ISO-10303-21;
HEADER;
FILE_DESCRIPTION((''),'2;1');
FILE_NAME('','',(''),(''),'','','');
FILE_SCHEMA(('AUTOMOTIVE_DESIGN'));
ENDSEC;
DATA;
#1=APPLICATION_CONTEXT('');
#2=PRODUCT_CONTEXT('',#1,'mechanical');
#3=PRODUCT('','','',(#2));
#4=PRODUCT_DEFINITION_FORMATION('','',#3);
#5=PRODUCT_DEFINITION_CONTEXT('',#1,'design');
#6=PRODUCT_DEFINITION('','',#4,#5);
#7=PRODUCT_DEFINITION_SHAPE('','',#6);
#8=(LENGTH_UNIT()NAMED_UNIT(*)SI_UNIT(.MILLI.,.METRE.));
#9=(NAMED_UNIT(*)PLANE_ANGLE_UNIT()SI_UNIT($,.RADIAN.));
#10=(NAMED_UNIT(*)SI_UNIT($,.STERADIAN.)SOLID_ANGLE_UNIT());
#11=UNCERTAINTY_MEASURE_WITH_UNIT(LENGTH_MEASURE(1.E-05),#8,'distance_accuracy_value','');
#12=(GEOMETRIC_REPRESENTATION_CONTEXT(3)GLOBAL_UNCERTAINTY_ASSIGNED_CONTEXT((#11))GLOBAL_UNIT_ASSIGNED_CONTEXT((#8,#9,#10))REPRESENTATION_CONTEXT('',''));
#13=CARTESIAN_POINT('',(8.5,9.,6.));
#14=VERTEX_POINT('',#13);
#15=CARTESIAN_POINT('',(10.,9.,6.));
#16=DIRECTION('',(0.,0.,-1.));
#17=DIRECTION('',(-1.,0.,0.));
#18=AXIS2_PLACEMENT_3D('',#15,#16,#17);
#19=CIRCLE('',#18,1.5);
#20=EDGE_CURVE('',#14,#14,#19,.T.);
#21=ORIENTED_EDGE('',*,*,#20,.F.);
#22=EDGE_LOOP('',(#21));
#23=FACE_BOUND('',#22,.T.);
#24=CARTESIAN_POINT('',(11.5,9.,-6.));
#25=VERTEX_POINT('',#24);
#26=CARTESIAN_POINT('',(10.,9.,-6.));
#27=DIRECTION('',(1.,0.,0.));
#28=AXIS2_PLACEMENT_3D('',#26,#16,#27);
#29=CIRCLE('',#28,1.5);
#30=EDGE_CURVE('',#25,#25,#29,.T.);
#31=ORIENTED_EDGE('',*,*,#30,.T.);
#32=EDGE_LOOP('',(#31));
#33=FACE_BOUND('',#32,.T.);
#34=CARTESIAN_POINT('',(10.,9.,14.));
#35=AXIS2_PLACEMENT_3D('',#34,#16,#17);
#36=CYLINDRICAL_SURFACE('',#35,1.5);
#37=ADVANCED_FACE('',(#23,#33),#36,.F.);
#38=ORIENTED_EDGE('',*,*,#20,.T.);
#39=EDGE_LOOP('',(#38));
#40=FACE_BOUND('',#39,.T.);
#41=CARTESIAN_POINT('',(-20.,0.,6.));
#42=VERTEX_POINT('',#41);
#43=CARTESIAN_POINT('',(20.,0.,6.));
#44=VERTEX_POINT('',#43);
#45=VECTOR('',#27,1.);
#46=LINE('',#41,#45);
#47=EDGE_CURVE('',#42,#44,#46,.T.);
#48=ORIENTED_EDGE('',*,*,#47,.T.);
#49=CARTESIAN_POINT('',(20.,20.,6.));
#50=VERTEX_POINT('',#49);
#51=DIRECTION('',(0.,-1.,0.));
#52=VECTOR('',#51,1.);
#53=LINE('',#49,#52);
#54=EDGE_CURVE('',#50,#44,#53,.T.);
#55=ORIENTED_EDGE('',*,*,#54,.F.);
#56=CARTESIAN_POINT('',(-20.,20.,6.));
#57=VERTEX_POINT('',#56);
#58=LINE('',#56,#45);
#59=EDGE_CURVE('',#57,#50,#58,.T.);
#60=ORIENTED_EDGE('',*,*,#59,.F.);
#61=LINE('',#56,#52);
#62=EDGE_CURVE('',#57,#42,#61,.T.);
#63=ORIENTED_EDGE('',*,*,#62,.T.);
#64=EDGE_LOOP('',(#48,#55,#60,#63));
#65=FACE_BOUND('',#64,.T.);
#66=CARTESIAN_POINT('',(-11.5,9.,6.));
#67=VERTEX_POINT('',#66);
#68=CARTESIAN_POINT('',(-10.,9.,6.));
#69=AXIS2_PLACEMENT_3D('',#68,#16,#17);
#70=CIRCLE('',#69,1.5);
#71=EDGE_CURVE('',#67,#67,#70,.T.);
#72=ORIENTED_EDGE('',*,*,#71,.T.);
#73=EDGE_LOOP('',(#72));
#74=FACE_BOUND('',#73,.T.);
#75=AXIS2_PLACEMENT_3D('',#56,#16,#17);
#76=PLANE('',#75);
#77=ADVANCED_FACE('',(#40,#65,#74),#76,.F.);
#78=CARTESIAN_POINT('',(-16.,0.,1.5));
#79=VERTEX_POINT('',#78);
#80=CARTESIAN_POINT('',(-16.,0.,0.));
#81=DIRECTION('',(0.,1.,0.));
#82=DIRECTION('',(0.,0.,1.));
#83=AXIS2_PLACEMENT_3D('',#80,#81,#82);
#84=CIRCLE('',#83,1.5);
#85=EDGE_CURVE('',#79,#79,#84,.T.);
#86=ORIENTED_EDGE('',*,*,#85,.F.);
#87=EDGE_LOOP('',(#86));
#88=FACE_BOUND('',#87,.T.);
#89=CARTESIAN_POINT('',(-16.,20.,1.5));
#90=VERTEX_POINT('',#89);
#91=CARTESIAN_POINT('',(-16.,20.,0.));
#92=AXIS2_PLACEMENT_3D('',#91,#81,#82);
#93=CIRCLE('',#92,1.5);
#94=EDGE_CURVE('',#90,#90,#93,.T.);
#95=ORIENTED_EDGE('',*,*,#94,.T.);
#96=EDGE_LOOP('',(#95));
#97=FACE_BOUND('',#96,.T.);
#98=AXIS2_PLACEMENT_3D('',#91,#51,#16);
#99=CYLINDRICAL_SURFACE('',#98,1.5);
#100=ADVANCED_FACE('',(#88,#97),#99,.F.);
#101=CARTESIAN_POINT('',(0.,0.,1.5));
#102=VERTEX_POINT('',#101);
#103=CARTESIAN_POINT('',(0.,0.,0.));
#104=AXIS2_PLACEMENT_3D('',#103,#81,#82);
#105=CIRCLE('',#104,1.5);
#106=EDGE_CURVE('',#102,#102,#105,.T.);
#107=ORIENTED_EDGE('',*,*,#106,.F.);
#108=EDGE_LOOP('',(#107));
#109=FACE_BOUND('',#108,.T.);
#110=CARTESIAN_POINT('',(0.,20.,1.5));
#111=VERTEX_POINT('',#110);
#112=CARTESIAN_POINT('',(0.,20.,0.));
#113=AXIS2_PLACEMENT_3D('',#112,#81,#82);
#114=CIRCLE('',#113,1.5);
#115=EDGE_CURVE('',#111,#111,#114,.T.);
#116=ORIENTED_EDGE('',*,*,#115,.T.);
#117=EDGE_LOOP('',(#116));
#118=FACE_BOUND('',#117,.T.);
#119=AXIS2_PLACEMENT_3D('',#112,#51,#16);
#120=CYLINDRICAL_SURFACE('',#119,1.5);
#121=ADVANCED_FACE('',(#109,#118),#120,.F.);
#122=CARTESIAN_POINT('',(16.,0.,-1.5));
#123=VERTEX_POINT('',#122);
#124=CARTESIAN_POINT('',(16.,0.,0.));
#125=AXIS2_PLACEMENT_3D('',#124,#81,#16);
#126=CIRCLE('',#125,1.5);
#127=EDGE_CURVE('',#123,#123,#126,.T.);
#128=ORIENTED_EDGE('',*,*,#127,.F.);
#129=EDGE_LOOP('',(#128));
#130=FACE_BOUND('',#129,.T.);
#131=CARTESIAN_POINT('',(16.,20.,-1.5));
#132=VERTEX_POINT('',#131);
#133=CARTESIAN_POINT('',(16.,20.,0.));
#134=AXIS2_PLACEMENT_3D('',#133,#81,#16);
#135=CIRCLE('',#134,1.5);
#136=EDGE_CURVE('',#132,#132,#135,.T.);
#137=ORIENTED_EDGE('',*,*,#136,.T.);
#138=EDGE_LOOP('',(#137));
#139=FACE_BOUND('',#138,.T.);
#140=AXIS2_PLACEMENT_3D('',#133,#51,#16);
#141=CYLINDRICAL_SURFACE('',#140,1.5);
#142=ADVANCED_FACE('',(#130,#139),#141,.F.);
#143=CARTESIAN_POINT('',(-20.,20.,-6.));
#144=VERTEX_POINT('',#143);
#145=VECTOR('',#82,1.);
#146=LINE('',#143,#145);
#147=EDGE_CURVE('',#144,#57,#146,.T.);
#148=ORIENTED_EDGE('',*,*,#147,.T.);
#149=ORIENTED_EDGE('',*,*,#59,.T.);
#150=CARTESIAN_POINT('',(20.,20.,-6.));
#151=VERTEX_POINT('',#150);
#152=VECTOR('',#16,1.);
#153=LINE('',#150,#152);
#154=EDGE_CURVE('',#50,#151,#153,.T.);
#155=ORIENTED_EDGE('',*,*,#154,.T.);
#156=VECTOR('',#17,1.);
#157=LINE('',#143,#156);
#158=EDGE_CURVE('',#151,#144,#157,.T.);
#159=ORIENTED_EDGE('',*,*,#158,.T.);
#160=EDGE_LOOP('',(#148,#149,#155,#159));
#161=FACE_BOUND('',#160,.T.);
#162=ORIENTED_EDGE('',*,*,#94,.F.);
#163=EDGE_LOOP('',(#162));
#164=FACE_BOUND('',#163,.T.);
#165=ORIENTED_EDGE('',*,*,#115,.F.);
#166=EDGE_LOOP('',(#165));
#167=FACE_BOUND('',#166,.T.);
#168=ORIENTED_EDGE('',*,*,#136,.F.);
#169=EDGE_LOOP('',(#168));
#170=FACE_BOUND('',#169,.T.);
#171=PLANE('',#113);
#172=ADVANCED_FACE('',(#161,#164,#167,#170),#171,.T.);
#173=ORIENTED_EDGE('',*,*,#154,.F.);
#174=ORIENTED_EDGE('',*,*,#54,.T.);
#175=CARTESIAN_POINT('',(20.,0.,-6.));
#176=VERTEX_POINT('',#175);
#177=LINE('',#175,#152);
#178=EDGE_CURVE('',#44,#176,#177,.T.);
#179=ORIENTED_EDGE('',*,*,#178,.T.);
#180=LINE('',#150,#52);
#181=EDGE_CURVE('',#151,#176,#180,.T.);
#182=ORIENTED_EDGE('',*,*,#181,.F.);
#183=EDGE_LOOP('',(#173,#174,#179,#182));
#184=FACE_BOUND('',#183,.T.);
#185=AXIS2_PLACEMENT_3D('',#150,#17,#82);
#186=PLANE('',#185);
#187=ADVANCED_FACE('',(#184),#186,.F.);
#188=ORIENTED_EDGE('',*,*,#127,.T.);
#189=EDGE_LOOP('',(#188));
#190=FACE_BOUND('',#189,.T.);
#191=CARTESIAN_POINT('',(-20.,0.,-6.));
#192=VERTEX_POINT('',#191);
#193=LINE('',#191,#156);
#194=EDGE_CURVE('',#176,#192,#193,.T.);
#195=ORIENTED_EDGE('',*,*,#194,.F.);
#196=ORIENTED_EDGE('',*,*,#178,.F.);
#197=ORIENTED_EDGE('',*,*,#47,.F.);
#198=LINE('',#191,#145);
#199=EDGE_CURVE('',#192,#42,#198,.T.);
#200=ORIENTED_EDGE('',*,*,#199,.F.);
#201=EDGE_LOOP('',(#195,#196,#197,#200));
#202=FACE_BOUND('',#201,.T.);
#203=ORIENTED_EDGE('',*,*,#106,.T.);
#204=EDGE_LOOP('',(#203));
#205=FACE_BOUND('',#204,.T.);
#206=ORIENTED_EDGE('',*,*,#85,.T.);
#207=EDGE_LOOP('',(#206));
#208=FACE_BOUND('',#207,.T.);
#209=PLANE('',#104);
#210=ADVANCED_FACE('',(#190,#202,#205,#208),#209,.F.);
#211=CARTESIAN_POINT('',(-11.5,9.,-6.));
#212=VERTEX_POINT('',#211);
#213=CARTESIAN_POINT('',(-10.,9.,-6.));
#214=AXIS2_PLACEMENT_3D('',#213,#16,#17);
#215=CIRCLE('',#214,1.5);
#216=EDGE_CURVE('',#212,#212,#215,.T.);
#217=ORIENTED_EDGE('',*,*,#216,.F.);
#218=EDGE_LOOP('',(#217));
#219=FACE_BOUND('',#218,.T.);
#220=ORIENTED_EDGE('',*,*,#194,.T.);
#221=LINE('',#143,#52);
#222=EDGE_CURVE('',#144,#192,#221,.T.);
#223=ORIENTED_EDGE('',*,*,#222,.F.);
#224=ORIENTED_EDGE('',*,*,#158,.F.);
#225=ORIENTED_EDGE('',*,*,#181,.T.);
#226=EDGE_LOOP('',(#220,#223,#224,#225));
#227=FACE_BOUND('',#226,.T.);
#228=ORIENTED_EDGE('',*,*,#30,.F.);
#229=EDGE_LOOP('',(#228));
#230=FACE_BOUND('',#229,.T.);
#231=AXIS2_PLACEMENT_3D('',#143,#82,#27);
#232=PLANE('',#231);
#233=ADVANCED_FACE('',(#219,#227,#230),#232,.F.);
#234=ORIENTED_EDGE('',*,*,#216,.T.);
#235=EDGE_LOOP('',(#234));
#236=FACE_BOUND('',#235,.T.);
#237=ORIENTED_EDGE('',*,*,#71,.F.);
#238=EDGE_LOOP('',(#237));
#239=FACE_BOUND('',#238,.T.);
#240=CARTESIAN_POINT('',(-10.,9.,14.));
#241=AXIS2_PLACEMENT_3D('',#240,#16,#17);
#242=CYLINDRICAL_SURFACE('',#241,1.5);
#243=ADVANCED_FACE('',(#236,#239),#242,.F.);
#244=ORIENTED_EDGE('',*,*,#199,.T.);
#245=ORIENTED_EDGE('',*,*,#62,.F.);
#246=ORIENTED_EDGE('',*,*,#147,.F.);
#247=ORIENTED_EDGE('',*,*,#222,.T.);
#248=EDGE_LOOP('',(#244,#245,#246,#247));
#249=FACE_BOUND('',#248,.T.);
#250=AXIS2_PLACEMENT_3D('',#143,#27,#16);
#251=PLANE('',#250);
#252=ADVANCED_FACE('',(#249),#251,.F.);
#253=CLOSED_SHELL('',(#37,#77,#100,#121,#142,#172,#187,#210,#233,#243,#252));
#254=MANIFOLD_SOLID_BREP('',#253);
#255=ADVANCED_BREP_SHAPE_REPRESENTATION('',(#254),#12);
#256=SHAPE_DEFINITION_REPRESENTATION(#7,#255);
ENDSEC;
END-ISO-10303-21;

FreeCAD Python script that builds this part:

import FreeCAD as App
import Part
import Sketcher

doc = App.newDocument("Part")
body = doc.addObject("PartDesign::Body", "Body")

sketch1 = body.newObject("Sketcher::SketchObject", "Sketch")
sketch1.AttachmentSupport = (doc.getObject("XZ_Plane"), [""])
sketch1.MapMode = "FlatFace"
sketch1.addGeometry([
    Part.LineSegment(App.Vector(-20, -6, 0), App.Vector(-20, 6, 0)),
    Part.LineSegment(App.Vector(-20, 6, 0), App.Vector(20, 6, 0)),
    Part.LineSegment(App.Vector(20, 6, 0), App.Vector(20, -6, 0)),
    Part.LineSegment(App.Vector(20, -6, 0), App.Vector(-20, -6, 0)),
    Part.Circle(App.Vector(-16, 0, 0), App.Vector(0, 0, 1), 1.5),
    Part.Circle(App.Vector(0, 0, 0), App.Vector(0, 0, 1), 1.5),
    Part.Circle(App.Vector(16, 0, 0), App.Vector(0, 0, 1), 1.5),
], False)
sketch1.addConstraint([
    Sketcher.Constraint("Coincident", 0, 2, 1, 1),
    Sketcher.Constraint("Coincident", 1, 2, 2, 1),
    Sketcher.Constraint("Coincident", 2, 2, 3, 1),
    Sketcher.Constraint("Coincident", 3, 2, 0, 1),
    Sketcher.Constraint("Vertical", 0),
    Sketcher.Constraint("Horizontal", 1),
    Sketcher.Constraint("Vertical", 2),
    Sketcher.Constraint("Horizontal", 3),
    Sketcher.Constraint("Coincident", 5, 3, -1, 1),
    Sketcher.Constraint("Equal", 4, 5),
    Sketcher.Constraint("Equal", 5, 6),
    Sketcher.Constraint("Symmetric", 4, 3, 6, 3, -1, 1),
    Sketcher.Constraint("Symmetric", 0, 2, 2, 2, -1, 1),
    Sketcher.Constraint("PointOnObject", 4, 3, -1),
    Sketcher.Constraint("Diameter", 4, 3.0),
    Sketcher.Constraint("DistanceX", 1, 1, 1, 2, 40.0),
    Sketcher.Constraint("DistanceY", 0, 1, 0, 2, 12.0),
    Sketcher.Constraint("DistanceX", 4, 3, -1, 1, 16.0),
])
pad1 = body.newObject("PartDesign::Pad", "Pad")
pad1.Profile = sketch1
pad1.Length = 20
pad1.Reversed = True

sketch2 = body.newObject("Sketcher::SketchObject", "Sketch001")
sketch2.AttachmentSupport = (doc.getObject("XY_Plane"), [""])
sketch2.MapMode = "FlatFace"
sketch2.AttachmentOffset = App.Placement(App.Vector(0, 0, -6), App.Rotation())
sketch2.addGeometry([
    Part.Circle(App.Vector(-10, 9, 0), App.Vector(0, 0, 1), 1.5),
    Part.Circle(App.Vector(10, 9, 0), App.Vector(0, 0, 1), 1.5),
], False)
sketch2.addConstraint([
    Sketcher.Constraint("Equal", 0, 1),
    Sketcher.Constraint("Symmetric", 0, 3, 1, 3, -2),
    Sketcher.Constraint("Diameter", 0, 3.0),
    Sketcher.Constraint("DistanceX", 0, 3, -1, 1, 10.0),
    Sketcher.Constraint("DistanceY", -1, 1, 0, 3, 9.0),
])
pocket1 = body.newObject("PartDesign::Pocket", "Pocket")
pocket1.Profile = sketch2
pocket1.Length = 20
pocket1.Reversed = True

doc.recompute()
